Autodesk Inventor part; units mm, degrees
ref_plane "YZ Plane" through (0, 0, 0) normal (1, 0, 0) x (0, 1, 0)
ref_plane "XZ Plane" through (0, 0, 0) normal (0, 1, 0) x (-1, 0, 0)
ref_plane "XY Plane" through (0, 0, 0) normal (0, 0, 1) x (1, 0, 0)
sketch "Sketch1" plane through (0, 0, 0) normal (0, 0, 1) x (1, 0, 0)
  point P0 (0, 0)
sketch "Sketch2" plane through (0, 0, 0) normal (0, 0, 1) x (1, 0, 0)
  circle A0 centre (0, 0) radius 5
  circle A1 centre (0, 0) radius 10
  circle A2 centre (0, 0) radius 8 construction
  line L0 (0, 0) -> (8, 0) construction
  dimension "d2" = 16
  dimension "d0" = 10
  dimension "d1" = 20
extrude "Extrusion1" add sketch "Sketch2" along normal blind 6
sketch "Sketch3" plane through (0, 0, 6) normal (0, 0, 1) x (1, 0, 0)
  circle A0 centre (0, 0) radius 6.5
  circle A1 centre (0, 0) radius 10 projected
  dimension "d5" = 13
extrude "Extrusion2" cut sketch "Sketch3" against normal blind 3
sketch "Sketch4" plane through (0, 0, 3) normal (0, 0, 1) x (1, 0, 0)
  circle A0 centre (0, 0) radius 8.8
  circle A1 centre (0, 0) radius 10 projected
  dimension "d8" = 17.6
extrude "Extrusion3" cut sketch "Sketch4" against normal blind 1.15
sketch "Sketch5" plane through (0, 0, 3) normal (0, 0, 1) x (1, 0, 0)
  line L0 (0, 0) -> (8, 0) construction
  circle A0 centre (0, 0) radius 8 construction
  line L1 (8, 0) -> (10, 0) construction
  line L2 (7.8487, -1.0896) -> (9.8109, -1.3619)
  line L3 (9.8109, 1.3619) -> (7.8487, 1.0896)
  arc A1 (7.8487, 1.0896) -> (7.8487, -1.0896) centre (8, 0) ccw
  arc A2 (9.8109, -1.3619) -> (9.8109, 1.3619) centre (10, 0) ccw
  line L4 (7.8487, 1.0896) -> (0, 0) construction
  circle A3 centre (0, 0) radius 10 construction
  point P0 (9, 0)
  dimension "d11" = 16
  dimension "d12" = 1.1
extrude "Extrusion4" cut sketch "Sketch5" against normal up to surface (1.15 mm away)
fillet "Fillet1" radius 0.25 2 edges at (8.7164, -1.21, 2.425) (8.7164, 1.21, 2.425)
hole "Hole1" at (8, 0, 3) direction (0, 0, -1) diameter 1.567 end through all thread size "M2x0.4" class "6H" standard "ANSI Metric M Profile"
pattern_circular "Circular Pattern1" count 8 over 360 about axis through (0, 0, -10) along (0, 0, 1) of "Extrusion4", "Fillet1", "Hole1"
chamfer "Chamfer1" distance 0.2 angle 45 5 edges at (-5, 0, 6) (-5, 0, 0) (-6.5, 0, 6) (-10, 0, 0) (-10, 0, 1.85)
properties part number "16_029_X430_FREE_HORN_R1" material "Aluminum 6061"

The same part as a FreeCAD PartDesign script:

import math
import FreeCAD as App
import Part
import Sketcher
from FreeCAD import Vector
Q = App.Units.Quantity


def edges_at(feature, points):
    """Names of the edges that pass closest to the given points."""
    edges = feature.Shape.Edges
    near = lambda p: min(range(len(edges)), key=lambda i: edges[i].distToShape(Part.Vertex(*p))[0])
    return sorted({f"Edge{near(p) + 1}" for p in points})

doc = App.newDocument("Part")
params = doc.addObject("Spreadsheet::Sheet", "Params")
for row, (alias, value) in enumerate([
    ("sketch1_diameter", "20 mm"),
    ("sketch1_diameter2", "10 mm"),
    ("pad1_length", "6 mm"),
    ("sketch2_diameter", "13 mm"),
    ("sketch2_diameter2", "20 mm"),
    ("pocket1_length", "3 mm"),
    ("sketch3_diameter", "17.6 mm"),
    ("sketch3_diameter2", "20 mm"),
    ("pocket2_length", "1.15 mm"),
    ("sketch4_radius", "1.1 mm"),
    ("pocket3_length", "1.15 mm"),
    ("fillet_radius", "0.25 mm"),
    ("hole_diameter", "1.567 mm"),
    ("chamfer_size", "0.2 mm"),
], start=1):
    params.set(f"A{row}", alias)
    params.set(f"B{row}", "=" + value)
    params.setAlias(f"B{row}", alias)

body = doc.addObject("PartDesign::Body", "Body")

# Sketch on XY plane
sketch1 = body.newObject("Sketcher::SketchObject", "Sketch")
sketch1.AttachmentSupport = (doc.getObject("XY_Plane"), [""])
sketch1.MapMode = "FlatFace"
sketch1.addGeometry([
    Part.Circle(Vector(0, 0, 0), Vector(0, 0, 1), 10),
    Part.Circle(Vector(0, 0, 0), Vector(0, 0, 1), 5),
], False)
sketch1.addConstraint([
    Sketcher.Constraint("Coincident", 0, 3, -1, 1),
    Sketcher.Constraint("Coincident", 1, 3, -1, 1),
    Sketcher.Constraint("Diameter", 0, 20.0),
    Sketcher.Constraint("Diameter", 1, 10.0),
])
sketch1.setExpression("Constraints[2]", "Params.sketch1_diameter")
sketch1.setExpression("Constraints[3]", "Params.sketch1_diameter2")
pad1 = body.newObject("PartDesign::Pad", "Pad")
pad1.Profile = sketch1
pad1.setExpression("Length", "Params.pad1_length")

# Sketch on XY plane
sketch2 = body.newObject("Sketcher::SketchObject", "Sketch001")
sketch2.AttachmentSupport = (doc.getObject("XY_Plane"), [""])
sketch2.MapMode = "FlatFace"
sketch2.AttachmentOffset = App.Placement(Vector(0, 0, 6), App.Rotation())
sketch2.addGeometry([
    Part.Circle(Vector(0, 0, 0), Vector(0, 0, 1), 10),
    Part.Circle(Vector(0, 0, 0), Vector(0, 0, 1), 6),
], False)
sketch2.addConstraint([
    Sketcher.Constraint("Coincident", 0, 3, -1, 1),
    Sketcher.Constraint("Coincident", 1, 3, -1, 1),
    Sketcher.Constraint("Diameter", 1, 13.0),
    Sketcher.Constraint("Diameter", 0, 20.0),
])
sketch2.setExpression("Constraints[2]", "Params.sketch2_diameter")
sketch2.setExpression("Constraints[3]", "Params.sketch2_diameter2")
pocket1 = body.newObject("PartDesign::Pocket", "Pocket")
pocket1.Profile = sketch2
pocket1.setExpression("Length", "Params.pocket1_length")

# Sketch on XY plane
sketch3 = body.newObject("Sketcher::SketchObject", "Sketch002")
sketch3.AttachmentSupport = (doc.getObject("XY_Plane"), [""])
sketch3.MapMode = "FlatFace"
sketch3.AttachmentOffset = App.Placement(Vector(0, 0, 3), App.Rotation())
sketch3.addGeometry([
    Part.Circle(Vector(0, 0, 0), Vector(0, 0, 1), 10),
    Part.Circle(Vector(0, 0, 0), Vector(0, 0, 1), 9),
], False)
sketch3.addConstraint([
    Sketcher.Constraint("Coincident", 0, 3, -1, 1),
    Sketcher.Constraint("Coincident", 1, 3, -1, 1),
    Sketcher.Constraint("Diameter", 1, 17.6),
    Sketcher.Constraint("Diameter", 0, 20.0),
])
sketch3.setExpression("Constraints[2]", "Params.sketch3_diameter")
sketch3.setExpression("Constraints[3]", "Params.sketch3_diameter2")
pocket2 = body.newObject("PartDesign::Pocket", "Pocket001")
pocket2.Profile = sketch3
pocket2.setExpression("Length", "Params.pocket2_length")

# Sketch on XY plane
sketch4 = body.newObject("Sketcher::SketchObject", "Sketch003")
sketch4.AttachmentSupport = (doc.getObject("XY_Plane"), [""])
sketch4.MapMode = "FlatFace"
sketch4.AttachmentOffset = App.Placement(Vector(0, 0, 3), App.Rotation())
sketch4.addGeometry([
    Part.ArcOfCircle(Part.Circle(Vector(8, 0, 0), Vector(0, 0, 1), 1.1), math.radians(98), math.radians(262)),
    Part.LineSegment(Vector(7.8, -1.1, 0), Vector(9.8, -1.4, 0)),
    Part.ArcOfCircle(Part.Circle(Vector(10, 0, 0), Vector(0, 0, 1), 1.4), math.radians(-98), math.radians(98)),
    Part.LineSegment(Vector(9.8, 1.4, 0), Vector(7.8, 1.1, 0)),
], False)
sketch4.addConstraint([
    Sketcher.Constraint("Tangent", 0, 2, 1, 1),
    Sketcher.Constraint("Tangent", 1, 2, 2, 1),
    Sketcher.Constraint("Tangent", 2, 2, 3, 1),
    Sketcher.Constraint("Tangent", 3, 2, 0, 1),
    Sketcher.Constraint("Symmetric", 1, 2, 2, 2, -1),
    Sketcher.Constraint("Radius", 0, 1.1),
    Sketcher.Constraint("DistanceX", -1, 1, 0, 3, 8.0),
    Sketcher.Constraint("DistanceX", -1, 1, 2, 3, 10.0),
    Sketcher.Constraint("Angle", 1, Q("-7.9006 deg")),
])
sketch4.setExpression("Constraints[5]", "Params.sketch4_radius")
pocket3 = body.newObject("PartDesign::Pocket", "Pocket002")
pocket3.Profile = sketch4
pocket3.setExpression("Length", "Params.pocket3_length")
doc.recompute()

fillet = body.newObject("PartDesign::Fillet", "Fillet")
fillet.Base = (pocket3, edges_at(pocket3, [(8.716, -1.21, 2.425), (8.716, 1.21, 2.425)]))
fillet.setExpression("Radius", "Params.fillet_radius")

# Sketch on XY plane
sketch5 = body.newObject("Sketcher::SketchObject", "Sketch004")
sketch5.AttachmentSupport = (doc.getObject("XY_Plane"), [""])
sketch5.MapMode = "FlatFace"
sketch5.AttachmentOffset = App.Placement(Vector(0, 0, 3), App.Rotation())
sketch5.addGeometry(Part.Circle(Vector(8, 0, 0), Vector(0, 0, 1), 0.8), False)
sketch5.addConstraint([
    Sketcher.Constraint("PointOnObject", 0, 3, -1),
    Sketcher.Constraint("Diameter", 0, 1.567),
    Sketcher.Constraint("DistanceX", -1, 1, 0, 3, 8.0),
])
doc.recompute()
hole = body.newObject("PartDesign::Hole", "Hole")
hole.Profile = sketch5
hole.ThreadType = "None"
hole.setExpression("Diameter", "Params.hole_diameter")
hole.DepthType = "ThroughAll"
doc.recompute()

polarpattern = body.newObject("PartDesign::PolarPattern", "PolarPattern")
polarpattern.Originals = [pocket3, fillet, hole]
polarpattern.Axis = (doc.getObject("Z_Axis"), [""])
polarpattern.Angle = 360
polarpattern.Occurrences = 8
body.Tip = polarpattern
doc.recompute()

chamfer = body.newObject("PartDesign::Chamfer", "Chamfer")
chamfer.Base = (polarpattern, edges_at(polarpattern, [
    (-5, 0, 6),
    (-5, 0, 0),
    (-6.5, 0, 6),
    (-10, 0, 0),
    (-10, 0, 1.85),
]))
chamfer.setExpression("Size", "Params.chamfer_size")

doc.recompute()
